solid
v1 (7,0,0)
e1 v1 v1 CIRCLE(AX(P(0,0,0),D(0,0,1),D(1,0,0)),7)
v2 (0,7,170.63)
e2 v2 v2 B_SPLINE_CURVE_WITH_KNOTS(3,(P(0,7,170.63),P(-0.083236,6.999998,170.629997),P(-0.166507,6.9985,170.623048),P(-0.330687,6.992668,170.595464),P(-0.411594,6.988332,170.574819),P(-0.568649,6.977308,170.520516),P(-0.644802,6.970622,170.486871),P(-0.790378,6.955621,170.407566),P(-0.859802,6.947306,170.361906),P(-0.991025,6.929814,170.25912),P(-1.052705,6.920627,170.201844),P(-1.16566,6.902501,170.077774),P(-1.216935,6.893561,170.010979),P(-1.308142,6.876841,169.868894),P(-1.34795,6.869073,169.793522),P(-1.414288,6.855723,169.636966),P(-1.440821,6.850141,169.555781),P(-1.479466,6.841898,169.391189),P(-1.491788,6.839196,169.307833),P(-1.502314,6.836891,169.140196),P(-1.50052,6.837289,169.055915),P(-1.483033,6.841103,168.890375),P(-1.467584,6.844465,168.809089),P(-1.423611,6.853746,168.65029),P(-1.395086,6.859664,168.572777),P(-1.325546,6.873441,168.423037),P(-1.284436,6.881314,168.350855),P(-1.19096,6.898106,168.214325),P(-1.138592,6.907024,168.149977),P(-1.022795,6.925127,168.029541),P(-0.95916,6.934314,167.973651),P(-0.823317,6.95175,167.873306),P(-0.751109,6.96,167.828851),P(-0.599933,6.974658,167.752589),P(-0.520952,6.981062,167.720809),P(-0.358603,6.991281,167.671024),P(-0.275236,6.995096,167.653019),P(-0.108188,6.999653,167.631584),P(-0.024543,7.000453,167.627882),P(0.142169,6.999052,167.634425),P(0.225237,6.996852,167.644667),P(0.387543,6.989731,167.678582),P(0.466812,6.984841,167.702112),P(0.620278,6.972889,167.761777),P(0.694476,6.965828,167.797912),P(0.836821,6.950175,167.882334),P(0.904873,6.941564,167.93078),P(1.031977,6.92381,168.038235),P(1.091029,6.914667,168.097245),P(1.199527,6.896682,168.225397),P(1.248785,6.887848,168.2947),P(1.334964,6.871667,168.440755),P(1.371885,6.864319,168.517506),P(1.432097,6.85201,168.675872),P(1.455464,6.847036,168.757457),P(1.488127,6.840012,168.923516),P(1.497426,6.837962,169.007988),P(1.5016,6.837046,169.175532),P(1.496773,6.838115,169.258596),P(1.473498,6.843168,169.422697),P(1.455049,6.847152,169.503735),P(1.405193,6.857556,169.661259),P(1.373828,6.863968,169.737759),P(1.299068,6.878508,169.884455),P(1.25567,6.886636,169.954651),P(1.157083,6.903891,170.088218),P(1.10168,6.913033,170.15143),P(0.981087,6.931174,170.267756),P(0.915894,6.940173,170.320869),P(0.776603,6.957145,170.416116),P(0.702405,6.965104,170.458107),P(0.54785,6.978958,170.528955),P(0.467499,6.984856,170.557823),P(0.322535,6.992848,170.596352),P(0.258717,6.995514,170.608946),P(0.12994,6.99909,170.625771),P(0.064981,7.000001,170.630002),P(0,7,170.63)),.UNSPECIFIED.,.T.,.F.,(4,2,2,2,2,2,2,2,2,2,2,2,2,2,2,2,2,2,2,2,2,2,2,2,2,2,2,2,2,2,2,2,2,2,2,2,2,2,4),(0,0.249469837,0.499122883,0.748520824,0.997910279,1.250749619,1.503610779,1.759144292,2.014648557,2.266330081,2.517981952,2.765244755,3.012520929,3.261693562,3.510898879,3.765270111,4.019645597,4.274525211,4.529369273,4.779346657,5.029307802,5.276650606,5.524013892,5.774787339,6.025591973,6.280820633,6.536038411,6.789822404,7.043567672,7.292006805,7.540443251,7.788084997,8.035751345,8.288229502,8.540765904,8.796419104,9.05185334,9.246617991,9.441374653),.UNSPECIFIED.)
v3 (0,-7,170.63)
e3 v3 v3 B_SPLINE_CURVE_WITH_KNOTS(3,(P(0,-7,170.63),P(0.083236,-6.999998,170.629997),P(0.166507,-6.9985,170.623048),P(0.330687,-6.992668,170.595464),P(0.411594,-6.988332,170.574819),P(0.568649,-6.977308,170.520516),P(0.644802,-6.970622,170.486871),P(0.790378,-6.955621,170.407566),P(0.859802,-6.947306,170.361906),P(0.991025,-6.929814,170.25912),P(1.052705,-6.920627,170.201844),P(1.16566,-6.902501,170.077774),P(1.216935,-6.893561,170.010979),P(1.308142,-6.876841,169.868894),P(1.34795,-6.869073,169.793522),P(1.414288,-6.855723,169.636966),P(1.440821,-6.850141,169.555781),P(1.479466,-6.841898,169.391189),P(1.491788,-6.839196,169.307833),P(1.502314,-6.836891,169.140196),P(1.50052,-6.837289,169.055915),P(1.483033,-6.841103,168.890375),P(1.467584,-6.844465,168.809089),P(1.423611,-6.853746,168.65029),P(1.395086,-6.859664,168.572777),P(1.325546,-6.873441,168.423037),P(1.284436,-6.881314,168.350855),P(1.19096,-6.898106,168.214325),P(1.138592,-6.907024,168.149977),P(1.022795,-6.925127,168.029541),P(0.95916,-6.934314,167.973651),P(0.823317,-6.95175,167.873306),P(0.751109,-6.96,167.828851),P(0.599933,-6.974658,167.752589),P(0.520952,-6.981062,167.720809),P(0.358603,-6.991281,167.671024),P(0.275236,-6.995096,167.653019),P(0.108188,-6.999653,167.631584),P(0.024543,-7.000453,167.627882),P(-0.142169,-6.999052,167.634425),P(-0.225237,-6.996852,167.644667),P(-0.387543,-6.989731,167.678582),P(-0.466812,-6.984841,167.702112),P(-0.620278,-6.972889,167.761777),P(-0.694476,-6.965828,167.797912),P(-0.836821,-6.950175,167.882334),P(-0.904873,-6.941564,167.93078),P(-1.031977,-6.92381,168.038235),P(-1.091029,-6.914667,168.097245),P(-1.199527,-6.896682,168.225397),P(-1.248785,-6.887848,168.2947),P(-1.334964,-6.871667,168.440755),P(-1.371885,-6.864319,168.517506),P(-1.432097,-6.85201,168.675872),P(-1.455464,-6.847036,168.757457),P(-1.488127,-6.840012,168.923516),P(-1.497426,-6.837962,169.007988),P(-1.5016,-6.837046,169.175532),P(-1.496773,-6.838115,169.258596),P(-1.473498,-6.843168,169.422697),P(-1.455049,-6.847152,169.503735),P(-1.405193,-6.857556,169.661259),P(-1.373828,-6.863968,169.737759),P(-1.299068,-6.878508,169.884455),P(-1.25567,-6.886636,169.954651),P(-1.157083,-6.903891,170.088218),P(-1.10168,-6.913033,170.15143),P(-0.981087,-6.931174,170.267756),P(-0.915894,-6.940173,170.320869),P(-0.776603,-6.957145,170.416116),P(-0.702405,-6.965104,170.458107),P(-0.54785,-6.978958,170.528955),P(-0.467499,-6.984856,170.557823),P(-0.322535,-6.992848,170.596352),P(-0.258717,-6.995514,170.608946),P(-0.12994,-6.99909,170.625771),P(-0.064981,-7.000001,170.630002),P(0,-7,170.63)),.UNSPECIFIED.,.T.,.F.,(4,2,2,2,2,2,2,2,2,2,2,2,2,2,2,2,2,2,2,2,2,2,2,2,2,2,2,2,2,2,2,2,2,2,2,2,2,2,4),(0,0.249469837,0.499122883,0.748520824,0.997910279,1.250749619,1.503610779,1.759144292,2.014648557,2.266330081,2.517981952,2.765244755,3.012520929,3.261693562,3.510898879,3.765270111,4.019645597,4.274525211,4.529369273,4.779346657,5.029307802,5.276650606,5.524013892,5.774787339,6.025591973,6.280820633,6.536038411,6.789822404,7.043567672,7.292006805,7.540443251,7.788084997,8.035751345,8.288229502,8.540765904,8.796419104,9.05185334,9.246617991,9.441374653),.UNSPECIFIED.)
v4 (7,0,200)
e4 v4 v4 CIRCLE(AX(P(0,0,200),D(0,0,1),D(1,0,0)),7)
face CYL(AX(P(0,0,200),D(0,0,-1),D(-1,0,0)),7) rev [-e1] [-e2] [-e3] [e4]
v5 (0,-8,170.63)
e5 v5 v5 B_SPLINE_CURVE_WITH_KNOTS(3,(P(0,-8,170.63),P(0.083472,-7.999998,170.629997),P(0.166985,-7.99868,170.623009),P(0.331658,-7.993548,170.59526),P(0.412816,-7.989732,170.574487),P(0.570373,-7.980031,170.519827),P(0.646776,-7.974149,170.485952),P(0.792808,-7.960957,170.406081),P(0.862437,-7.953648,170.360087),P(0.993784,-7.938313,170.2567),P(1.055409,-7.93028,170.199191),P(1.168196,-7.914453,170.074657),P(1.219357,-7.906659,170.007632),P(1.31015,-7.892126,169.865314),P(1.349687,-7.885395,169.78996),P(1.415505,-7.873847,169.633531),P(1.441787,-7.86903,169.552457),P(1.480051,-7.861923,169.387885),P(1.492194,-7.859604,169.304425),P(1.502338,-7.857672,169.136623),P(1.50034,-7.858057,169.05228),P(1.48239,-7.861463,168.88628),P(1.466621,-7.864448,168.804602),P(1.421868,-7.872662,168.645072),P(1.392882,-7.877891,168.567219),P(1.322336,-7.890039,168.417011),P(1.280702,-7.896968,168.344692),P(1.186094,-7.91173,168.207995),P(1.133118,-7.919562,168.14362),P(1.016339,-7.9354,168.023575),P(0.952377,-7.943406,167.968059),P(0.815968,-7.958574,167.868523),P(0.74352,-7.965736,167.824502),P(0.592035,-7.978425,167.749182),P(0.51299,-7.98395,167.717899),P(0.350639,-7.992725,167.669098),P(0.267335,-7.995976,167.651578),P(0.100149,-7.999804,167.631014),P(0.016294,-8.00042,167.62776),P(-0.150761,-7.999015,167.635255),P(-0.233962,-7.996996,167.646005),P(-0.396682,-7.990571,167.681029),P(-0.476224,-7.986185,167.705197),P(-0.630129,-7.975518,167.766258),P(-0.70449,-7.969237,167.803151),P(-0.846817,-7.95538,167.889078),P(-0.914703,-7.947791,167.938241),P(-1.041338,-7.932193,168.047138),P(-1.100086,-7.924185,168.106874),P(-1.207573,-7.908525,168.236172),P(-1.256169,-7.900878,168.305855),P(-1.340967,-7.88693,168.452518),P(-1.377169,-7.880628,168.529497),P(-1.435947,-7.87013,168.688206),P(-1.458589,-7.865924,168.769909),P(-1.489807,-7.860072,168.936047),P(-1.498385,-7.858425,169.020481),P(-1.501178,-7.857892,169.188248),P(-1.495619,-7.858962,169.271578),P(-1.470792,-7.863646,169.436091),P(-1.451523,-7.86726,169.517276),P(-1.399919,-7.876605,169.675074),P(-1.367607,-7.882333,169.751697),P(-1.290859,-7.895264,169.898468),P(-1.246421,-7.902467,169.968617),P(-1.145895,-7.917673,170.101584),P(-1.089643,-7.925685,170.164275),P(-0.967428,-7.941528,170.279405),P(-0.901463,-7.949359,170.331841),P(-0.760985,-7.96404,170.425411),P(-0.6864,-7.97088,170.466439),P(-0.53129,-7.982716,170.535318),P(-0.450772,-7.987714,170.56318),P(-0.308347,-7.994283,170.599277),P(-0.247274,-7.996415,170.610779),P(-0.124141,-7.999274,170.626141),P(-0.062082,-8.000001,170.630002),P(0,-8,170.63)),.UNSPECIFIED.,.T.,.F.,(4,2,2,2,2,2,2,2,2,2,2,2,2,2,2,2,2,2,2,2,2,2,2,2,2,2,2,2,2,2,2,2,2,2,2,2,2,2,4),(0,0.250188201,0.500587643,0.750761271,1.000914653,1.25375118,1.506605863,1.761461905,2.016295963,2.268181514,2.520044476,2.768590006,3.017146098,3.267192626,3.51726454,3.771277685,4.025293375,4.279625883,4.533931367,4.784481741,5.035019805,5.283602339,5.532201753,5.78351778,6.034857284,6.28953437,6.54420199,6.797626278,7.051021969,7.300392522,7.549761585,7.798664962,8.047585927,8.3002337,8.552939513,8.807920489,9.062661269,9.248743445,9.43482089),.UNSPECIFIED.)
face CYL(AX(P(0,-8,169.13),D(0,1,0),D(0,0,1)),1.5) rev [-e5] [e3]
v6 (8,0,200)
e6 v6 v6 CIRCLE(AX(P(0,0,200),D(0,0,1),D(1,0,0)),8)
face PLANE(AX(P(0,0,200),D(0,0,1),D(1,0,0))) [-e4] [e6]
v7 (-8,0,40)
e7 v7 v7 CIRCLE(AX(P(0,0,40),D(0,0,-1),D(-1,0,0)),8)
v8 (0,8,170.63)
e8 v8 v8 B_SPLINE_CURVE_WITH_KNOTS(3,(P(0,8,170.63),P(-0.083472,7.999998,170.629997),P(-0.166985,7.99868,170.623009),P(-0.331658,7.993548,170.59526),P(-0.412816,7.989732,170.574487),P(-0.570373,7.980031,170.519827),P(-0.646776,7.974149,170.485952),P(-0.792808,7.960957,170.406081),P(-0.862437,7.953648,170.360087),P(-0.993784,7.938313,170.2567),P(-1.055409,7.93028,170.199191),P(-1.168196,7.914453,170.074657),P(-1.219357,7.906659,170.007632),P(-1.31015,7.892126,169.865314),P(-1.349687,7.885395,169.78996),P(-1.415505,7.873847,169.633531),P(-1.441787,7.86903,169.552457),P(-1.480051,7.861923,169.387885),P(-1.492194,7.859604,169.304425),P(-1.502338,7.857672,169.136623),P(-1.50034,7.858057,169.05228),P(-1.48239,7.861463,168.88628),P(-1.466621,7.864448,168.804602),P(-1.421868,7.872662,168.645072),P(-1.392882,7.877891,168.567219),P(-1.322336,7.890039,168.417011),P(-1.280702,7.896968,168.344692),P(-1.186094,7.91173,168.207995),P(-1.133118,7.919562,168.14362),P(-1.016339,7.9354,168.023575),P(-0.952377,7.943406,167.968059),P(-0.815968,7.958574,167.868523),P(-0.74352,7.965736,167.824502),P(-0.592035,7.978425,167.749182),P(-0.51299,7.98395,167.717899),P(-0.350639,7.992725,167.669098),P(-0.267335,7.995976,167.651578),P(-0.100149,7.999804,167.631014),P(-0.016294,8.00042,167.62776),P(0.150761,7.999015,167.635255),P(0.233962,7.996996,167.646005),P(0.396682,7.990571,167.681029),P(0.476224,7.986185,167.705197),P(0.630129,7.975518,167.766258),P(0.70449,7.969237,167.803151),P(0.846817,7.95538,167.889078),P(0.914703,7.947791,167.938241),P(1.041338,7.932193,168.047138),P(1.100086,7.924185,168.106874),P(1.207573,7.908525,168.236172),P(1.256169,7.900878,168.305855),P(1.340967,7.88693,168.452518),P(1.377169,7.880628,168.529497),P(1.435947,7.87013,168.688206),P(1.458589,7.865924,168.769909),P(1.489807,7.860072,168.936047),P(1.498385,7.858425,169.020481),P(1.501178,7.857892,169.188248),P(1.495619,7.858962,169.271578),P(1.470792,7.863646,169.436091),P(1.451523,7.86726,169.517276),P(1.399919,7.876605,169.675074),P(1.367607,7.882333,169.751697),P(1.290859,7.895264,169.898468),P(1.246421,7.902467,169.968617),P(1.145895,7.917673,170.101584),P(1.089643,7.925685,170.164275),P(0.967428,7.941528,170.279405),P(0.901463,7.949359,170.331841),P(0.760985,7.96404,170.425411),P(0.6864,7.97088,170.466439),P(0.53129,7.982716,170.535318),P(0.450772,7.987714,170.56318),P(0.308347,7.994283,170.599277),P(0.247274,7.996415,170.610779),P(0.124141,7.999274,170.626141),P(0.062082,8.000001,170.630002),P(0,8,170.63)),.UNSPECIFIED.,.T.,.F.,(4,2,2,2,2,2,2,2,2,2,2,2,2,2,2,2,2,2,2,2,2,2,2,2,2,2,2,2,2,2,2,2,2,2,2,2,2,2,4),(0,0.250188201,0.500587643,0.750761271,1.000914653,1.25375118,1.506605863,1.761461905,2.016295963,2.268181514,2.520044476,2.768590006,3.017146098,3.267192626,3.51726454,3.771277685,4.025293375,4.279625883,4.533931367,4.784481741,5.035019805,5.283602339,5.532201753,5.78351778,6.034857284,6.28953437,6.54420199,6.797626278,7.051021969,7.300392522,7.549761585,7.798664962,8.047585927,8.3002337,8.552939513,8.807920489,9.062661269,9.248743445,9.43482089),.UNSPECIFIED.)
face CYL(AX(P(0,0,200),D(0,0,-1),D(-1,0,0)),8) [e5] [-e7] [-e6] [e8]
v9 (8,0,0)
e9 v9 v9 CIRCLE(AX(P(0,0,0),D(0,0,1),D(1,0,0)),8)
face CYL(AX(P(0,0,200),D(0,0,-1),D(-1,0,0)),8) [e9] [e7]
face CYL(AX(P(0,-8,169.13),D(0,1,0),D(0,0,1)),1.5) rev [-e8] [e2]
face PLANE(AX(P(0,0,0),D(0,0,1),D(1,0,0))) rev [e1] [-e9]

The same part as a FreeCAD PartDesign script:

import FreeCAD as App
import Part
import Sketcher

V = App.Vector
Q = App.Units.Quantity

doc = App.newDocument("Part")
body = doc.addObject("PartDesign::Body", "Body")

# Sketch on XY plane
sketch1 = body.newObject("Sketcher::SketchObject", "Sketch")
sketch1.AttachmentSupport = (doc.getObject("XY_Plane"), [""])
sketch1.MapMode = "FlatFace"
sketch1.addGeometry([
    Part.Circle(V(0, 0, 0), V(0, 0, 1), 8),
    Part.Circle(V(0, 0, 0), V(0, 0, 1), 7),
], False)
sketch1.addConstraint([
    Sketcher.Constraint("Coincident", 0, 3, -1, 1),
    Sketcher.Constraint("Coincident", 1, 3, -1, 1),
    Sketcher.Constraint("Diameter", 0, Q("16 mm")),
    Sketcher.Constraint("Diameter", 1, Q("14 mm")),
])
pad1 = body.newObject("PartDesign::Pad", "Pad")
pad1.Profile = sketch1
pad1.Length = 200

# Sketch on XZ plane
sketch2 = body.newObject("Sketcher::SketchObject", "Sketch001")
sketch2.AttachmentSupport = (doc.getObject("XZ_Plane"), [""])
sketch2.MapMode = "FlatFace"
sketch2.addGeometry(Part.Circle(V(0, 169.1, 0), V(0, 0, 1), 1.5), False)
sketch2.addConstraint([
    Sketcher.Constraint("PointOnObject", 0, 3, -2),
    Sketcher.Constraint("Diameter", 0, Q("3 mm")),
    Sketcher.Constraint("DistanceY", -1, 1, 0, 3, Q("169.13 mm")),
])
pocket1 = body.newObject("PartDesign::Pocket", "Pocket")
pocket1.Profile = sketch2
pocket1.Type = "ThroughAll"
pocket1.Midplane = True

doc.recompute()
